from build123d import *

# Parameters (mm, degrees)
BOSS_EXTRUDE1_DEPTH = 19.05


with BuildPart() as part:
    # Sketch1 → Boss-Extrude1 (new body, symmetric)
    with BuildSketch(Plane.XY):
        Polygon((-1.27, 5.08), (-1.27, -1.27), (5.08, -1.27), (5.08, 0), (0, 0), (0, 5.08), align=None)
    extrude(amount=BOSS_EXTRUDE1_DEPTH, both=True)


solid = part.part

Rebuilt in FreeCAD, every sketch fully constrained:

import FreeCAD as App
import Part
import Sketcher
Q = App.Units.Quantity

doc = App.newDocument("Part")
body = doc.addObject("PartDesign::Body", "Body")

# Sketch on XY plane
sketch1 = body.newObject("Sketcher::SketchObject", "Sketch")
sketch1.AttachmentSupport = (doc.getObject("XY_Plane"), [""])
sketch1.MapMode = "FlatFace"
sketch1.addGeometry(Part.LineSegment(App.Vector(-1.3, 5.1, 0), App.Vector(-1.3, -1.3, 0)), False)
sketch1.addGeometry(Part.LineSegment(App.Vector(-1.3, -1.3, 0), App.Vector(5.1, -1.3, 0)), False)
sketch1.addGeometry(Part.LineSegment(App.Vector(5.1, -1.3, 0), App.Vector(5.1, 0, 0)), False)
sketch1.addGeometry(Part.LineSegment(App.Vector(5.1, 0, 0), App.Vector(0, 0, 0)), False)
sketch1.addGeometry(Part.LineSegment(App.Vector(0, 0, 0), App.Vector(0, 5.1, 0)), False)
sketch1.addGeometry(Part.LineSegment(App.Vector(0, 5.1, 0), App.Vector(-1.3, 5.1, 0)), False)
sketch1.addConstraint(Sketcher.Constraint("Coincident", 0, 2, 1, 1))
sketch1.addConstraint(Sketcher.Constraint("Coincident", 1, 2, 2, 1))
sketch1.addConstraint(Sketcher.Constraint("Coincident", 2, 2, 3, 1))
sketch1.addConstraint(Sketcher.Constraint("Coincident", 3, 2, 4, 1))
sketch1.addConstraint(Sketcher.Constraint("Coincident", 4, 2, 5, 1))
sketch1.addConstraint(Sketcher.Constraint("Coincident", 5, 2, 0, 1))
sketch1.addConstraint(Sketcher.Constraint("Vertical", 0))
sketch1.addConstraint(Sketcher.Constraint("Horizontal", 1))
sketch1.addConstraint(Sketcher.Constraint("Vertical", 2))
sketch1.addConstraint(Sketcher.Constraint("Horizontal", 3))
sketch1.addConstraint(Sketcher.Constraint("Vertical", 4))
sketch1.addConstraint(Sketcher.Constraint("Horizontal", 5))
sketch1.addConstraint(Sketcher.Constraint("Coincident", 3, 2, -1, 1))
sketch1.addConstraint(Sketcher.Constraint("Equal", 1, 0))
sketch1.addConstraint(Sketcher.Constraint("Equal", 5, 2))
sketch1.addConstraint(Sketcher.Constraint("DistanceX", 3, 2, 3, 1, Q("0.2 in")))
sketch1.addConstraint(Sketcher.Constraint("DistanceX", 1, 1, 1, 2, Q("0.25 in")))
pad1 = body.newObject("PartDesign::Pad", "Pad")
pad1.Profile = sketch1
pad1.Length = Q("1.5 in")
pad1.Midplane = True

doc.recompute()
